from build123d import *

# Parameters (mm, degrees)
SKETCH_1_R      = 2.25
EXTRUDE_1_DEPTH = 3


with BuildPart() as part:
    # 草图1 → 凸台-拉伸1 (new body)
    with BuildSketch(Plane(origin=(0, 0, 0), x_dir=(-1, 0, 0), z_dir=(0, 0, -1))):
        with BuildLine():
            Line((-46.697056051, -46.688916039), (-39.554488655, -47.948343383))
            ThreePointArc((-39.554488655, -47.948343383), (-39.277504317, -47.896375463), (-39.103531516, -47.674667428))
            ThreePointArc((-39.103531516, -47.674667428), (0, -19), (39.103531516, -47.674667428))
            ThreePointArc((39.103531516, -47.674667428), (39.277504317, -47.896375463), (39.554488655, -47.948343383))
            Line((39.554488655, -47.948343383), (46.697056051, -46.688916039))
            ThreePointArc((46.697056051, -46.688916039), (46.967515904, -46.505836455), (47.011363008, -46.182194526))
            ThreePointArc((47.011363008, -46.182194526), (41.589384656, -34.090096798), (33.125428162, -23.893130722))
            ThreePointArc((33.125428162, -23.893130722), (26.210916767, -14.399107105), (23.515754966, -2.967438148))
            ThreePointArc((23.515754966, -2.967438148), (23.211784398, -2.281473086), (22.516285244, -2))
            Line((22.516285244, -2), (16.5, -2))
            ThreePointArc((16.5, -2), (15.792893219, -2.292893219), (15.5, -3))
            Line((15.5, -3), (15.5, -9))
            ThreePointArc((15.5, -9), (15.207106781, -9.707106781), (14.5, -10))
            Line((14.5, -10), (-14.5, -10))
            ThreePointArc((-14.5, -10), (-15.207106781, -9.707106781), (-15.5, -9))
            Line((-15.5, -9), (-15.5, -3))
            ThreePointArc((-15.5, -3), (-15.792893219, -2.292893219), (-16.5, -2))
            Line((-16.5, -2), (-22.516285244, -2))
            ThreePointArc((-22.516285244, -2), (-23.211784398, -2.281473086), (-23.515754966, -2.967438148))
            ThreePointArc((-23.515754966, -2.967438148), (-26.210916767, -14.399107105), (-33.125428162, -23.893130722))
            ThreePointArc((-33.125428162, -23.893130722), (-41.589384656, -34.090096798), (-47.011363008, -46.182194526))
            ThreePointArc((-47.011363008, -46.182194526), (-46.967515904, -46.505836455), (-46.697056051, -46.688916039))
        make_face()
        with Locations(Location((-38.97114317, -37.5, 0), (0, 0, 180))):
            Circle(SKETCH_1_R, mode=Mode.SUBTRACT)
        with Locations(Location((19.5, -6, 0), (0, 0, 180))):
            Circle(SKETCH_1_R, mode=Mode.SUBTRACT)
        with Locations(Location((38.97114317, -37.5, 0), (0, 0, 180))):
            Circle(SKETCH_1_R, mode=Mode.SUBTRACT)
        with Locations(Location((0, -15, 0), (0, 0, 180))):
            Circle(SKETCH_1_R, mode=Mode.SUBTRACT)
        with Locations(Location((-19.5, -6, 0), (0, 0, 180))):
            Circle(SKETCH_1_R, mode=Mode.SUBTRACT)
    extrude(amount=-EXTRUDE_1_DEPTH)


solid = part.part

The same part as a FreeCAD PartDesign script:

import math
import FreeCAD as App
import Part
import Sketcher

V = App.Vector
Q = App.Units.Quantity

doc = App.newDocument("Part")
params = doc.addObject("Spreadsheet::Sheet", "Params")
for row, (alias, value) in enumerate([
    ("sketch1_radius", "41 mm"),
    ("sketch1_radius2", "49 mm"),
    ("sketch1_radius3", "1 mm"),
    ("sketch1_radius4", "1 mm"),
    ("sketch1_radius5", "1 mm"),
    ("pad1_length", "3 mm"),
], start=1):
    params.set(f"A{row}", alias)
    params.set(f"B{row}", "=" + value)
    params.setAlias(f"B{row}", alias)

body = doc.addObject("PartDesign::Body", "Body")

sketch1 = doc.addObject("Sketcher::SketchObject", "Sketch")
body.addObject(sketch1)
sketch1.AttachmentSupport = (doc.XY_Plane, [""])
sketch1.MapMode = "FlatFace"
sketch1.addGeometry([
    Part.LineSegment(V(46.697056, -46.688916, 0), V(39.554489, -47.948343, 0)),
    Part.ArcOfCircle(Part.Circle(V(39.485029, -47.55442, 0), V(0, 0, 1), 0.4), math.radians(-162.505283), math.radians(-80)),
    Part.ArcOfCircle(Part.Circle(V(0, -60, 0), V(0, 0, 1), 41), math.radians(17.494717), math.radians(162.505283)),
    Part.ArcOfCircle(Part.Circle(V(-39.485029, -47.55442, 0), V(0, 0, 1), 0.4), math.radians(-100), math.radians(-17.494717)),
    Part.LineSegment(V(-39.554489, -47.948343, 0), V(-46.697056, -46.688916, 0)),
    Part.ArcOfCircle(Part.Circle(V(-46.627597, -46.294993, 0), V(0, 0, 1), 0.4), math.radians(163.62063), math.radians(260)),
    Part.ArcOfCircle(Part.Circle(V(0, -60, 0), V(0, 0, 1), 49), math.radians(132.53412), math.radians(163.62063)),
    Part.ArcOfCircle(Part.Circle(V(-53.210784, -2, 0), V(0, 0, 1), 29.710784), math.radians(-47.46588), math.radians(-1.865987)),
    Part.ArcOfCircle(Part.Circle(V(-22.516285, -3, 0), V(0, 0, 1), 1), math.radians(90), math.radians(178.134013)),
    Part.LineSegment(V(-22.516285, -2, 0), V(-16.5, -2, 0)),
    Part.ArcOfCircle(Part.Circle(V(-16.5, -3, 0), V(0, 0, 1), 1), math.radians(0), math.radians(90)),
    Part.LineSegment(V(-15.5, -3, 0), V(-15.5, -9, 0)),
    Part.ArcOfCircle(Part.Circle(V(-14.5, -9, 0), V(0, 0, 1), 1), math.radians(-180), math.radians(-90)),
    Part.LineSegment(V(-14.5, -10, 0), V(14.5, -10, 0)),
    Part.ArcOfCircle(Part.Circle(V(14.5, -9, 0), V(0, 0, 1), 1), math.radians(-90), math.radians(0)),
    Part.LineSegment(V(15.5, -9, 0), V(15.5, -3, 0)),
    Part.ArcOfCircle(Part.Circle(V(16.5, -3, 0), V(0, 0, 1), 1), math.radians(90), math.radians(180)),
    Part.LineSegment(V(16.5, -2, 0), V(22.516285, -2, 0)),
    Part.ArcOfCircle(Part.Circle(V(22.516285, -3, 0), V(0, 0, 1), 1), math.radians(1.865987), math.radians(90)),
    Part.ArcOfCircle(Part.Circle(V(53.210784, -2, 0), V(0, 0, 1), 29.710784), math.radians(-178.134013), math.radians(-132.53412)),
    Part.ArcOfCircle(Part.Circle(V(0, -60, 0), V(0, 0, 1), 49), math.radians(16.37937), math.radians(47.46588)),
    Part.ArcOfCircle(Part.Circle(V(46.627597, -46.294993, 0), V(0, 0, 1), 0.4), math.radians(-80), math.radians(16.37937)),
    Part.Circle(V(38.971143, -37.5, 0), V(0, 0, 1), 2.25),
    Part.Circle(V(-38.971143, -37.5, 0), V(0, 0, 1), 2.25),
    Part.Circle(V(19.5, -6, 0), V(0, 0, 1), 2.25),
    Part.Circle(V(0, -15, 0), V(0, 0, 1), 2.25),
    Part.Circle(V(-19.5, -6, 0), V(0, 0, 1), 2.25),
], False)
sketch1.addConstraint([
    Sketcher.Constraint("Coincident", 0, 2, 1, 2),
    Sketcher.Constraint("Coincident", 1, 1, 2, 1),
    Sketcher.Constraint("Coincident", 2, 2, 3, 2),
    Sketcher.Constraint("Coincident", 3, 1, 4, 1),
    Sketcher.Constraint("Coincident", 4, 2, 5, 2),
    Sketcher.Constraint("Coincident", 5, 1, 6, 2),
    Sketcher.Constraint("Coincident", 6, 1, 7, 1),
    Sketcher.Constraint("Coincident", 7, 2, 8, 2),
    Sketcher.Constraint("Coincident", 8, 1, 9, 1),
    Sketcher.Constraint("Coincident", 9, 2, 10, 2),
    Sketcher.Constraint("Coincident", 10, 1, 11, 1),
    Sketcher.Constraint("Coincident", 11, 2, 12, 1),
    Sketcher.Constraint("Coincident", 12, 2, 13, 1),
    Sketcher.Constraint("Coincident", 13, 2, 14, 1),
    Sketcher.Constraint("Coincident", 14, 2, 15, 1),
    Sketcher.Constraint("Coincident", 15, 2, 16, 2),
    Sketcher.Constraint("Coincident", 16, 1, 17, 1),
    Sketcher.Constraint("Coincident", 17, 2, 18, 2),
    Sketcher.Constraint("Coincident", 18, 1, 19, 1),
    Sketcher.Constraint("Coincident", 19, 2, 20, 2),
    Sketcher.Constraint("Coincident", 20, 1, 21, 2),
    Sketcher.Constraint("Coincident", 21, 1, 0, 1),
    Sketcher.Constraint("Horizontal", 9),
    Sketcher.Constraint("Vertical", 11),
    Sketcher.Constraint("Horizontal", 13),
    Sketcher.Constraint("Vertical", 15),
    Sketcher.Constraint("Horizontal", 17),
    Sketcher.Constraint("Coincident", 6, 3, 2, 3),
    Sketcher.Constraint("Coincident", 20, 3, 2, 3),
    Sketcher.Constraint("PointOnObject", 2, 3, -2),
    Sketcher.Constraint("PointOnObject", 25, 3, -2),
    Sketcher.Constraint("Radius", 2, Q("41 mm")),
    Sketcher.Constraint("Radius", 6, Q("49 mm")),
    Sketcher.Constraint("Radius", 8, Q("1 mm")),
    Sketcher.Constraint("Radius", 10, Q("1 mm")),
    Sketcher.Constraint("Radius", 12, Q("1 mm")),
    Sketcher.Constraint("Radius", 14, Q("1 mm")),
    Sketcher.Constraint("Radius", 16, Q("1 mm")),
    Sketcher.Constraint("Radius", 18, Q("1 mm")),
    Sketcher.Constraint("Radius", 20, Q("49 mm")),
    Sketcher.Constraint("Diameter", 22, Q("4.5 mm")),
    Sketcher.Constraint("Diameter", 23, Q("4.5 mm")),
    Sketcher.Constraint("Diameter", 24, Q("4.5 mm")),
    Sketcher.Constraint("Diameter", 25, Q("4.5 mm")),
    Sketcher.Constraint("Diameter", 26, Q("4.5 mm")),
    Sketcher.Constraint("Radius", 1, Q("0.4 mm")),
    Sketcher.Constraint("Radius", 3, Q("0.4 mm")),
    Sketcher.Constraint("Radius", 5, Q("0.4 mm")),
    Sketcher.Constraint("Radius", 21, Q("0.4 mm")),
    Sketcher.Constraint("DistanceX", 13, 1, 13, 2, Q("29 mm")),
    Sketcher.Constraint("DistanceY", 11, 2, 11, 1, Q("6 mm")),
    Sketcher.Constraint("DistanceY", 15, 1, 15, 2, Q("6 mm")),
    Sketcher.Constraint("DistanceY", 2, 3, -1, 1, Q("60 mm")),
    Sketcher.Constraint("DistanceY", 7, 3, -1, 1, Q("2 mm")),
    Sketcher.Constraint("DistanceY", 8, 3, -1, 1, Q("3 mm")),
    Sketcher.Constraint("DistanceY", 12, 3, -1, 1, Q("9 mm")),
    Sketcher.Constraint("DistanceY", 16, 3, -1, 1, Q("3 mm")),
    Sketcher.Constraint("DistanceY", 19, 3, -1, 1, Q("2 mm")),
    Sketcher.Constraint("DistanceY", 24, 3, -1, 1, Q("6 mm")),
    Sketcher.Constraint("DistanceY", 25, 3, -1, 1, Q("15 mm")),
    Sketcher.Constraint("DistanceY", 26, 3, -1, 1, Q("6 mm")),
    Sketcher.Constraint("DistanceY", 10, 1, -1, 1, Q("3 mm")),
    Sketcher.Constraint("DistanceY", 14, 2, -1, 1, Q("9 mm")),
    Sketcher.Constraint("DistanceX", 12, 3, 14, 3, Q("29 mm")),
    Sketcher.Constraint("DistanceX", 16, 3, 24, 3, Q("3 mm")),
    Sketcher.Constraint("DistanceX", 26, 3, 10, 3, Q("3 mm")),
    Sketcher.Constraint("DistanceX", 26, 3, 9, 2, Q("3 mm")),
    Sketcher.Constraint("DistanceX", 11, 2, 12, 2, Q("1 mm")),
    Sketcher.Constraint("DistanceX", 15, 2, 16, 1, Q("1 mm")),
    Sketcher.Constraint("DistanceX", 10, 3, -1, 1, Q("16.5 mm")),
    Sketcher.Constraint("DistanceY", 22, 3, -1, 1, Q("37.5 mm")),
    Sketcher.Constraint("DistanceY", 23, 3, -1, 1, Q("37.5 mm")),
    Sketcher.Constraint("Radius", 7, Q("29.710784 mm")),
    Sketcher.Constraint("Radius", 19, Q("29.710784 mm")),
    Sketcher.Constraint("DistanceY", 5, 3, 5, 1, Q("0.112798 mm")),
    Sketcher.Constraint("DistanceX", 3, 3, 6, 1, Q("6.359601 mm")),
    Sketcher.Constraint("DistanceY", 21, 3, 20, 1, Q("0.112798 mm")),
    Sketcher.Constraint("DistanceX", 9, 1, 9, 2, Q("6.016285 mm")),
    Sketcher.Constraint("DistanceX", 17, 1, 17, 2, Q("6.016285 mm")),
    Sketcher.Constraint("DistanceX", -1, 1, 1, 3, Q("39.485029 mm")),
    Sketcher.Constraint("DistanceX", 3, 3, -1, 1, Q("39.485029 mm")),
    Sketcher.Constraint("DistanceX", -1, 1, 0, 2, Q("39.554489 mm")),
    Sketcher.Constraint("DistanceX", -1, 1, 1, 1, Q("39.103532 mm")),
    Sketcher.Constraint("DistanceX", 2, 2, -1, 1, Q("39.103532 mm")),
    Sketcher.Constraint("DistanceX", 3, 1, -1, 1, Q("39.554489 mm")),
    Sketcher.Constraint("DistanceY", 7, 2, -1, 1, Q("2.967438 mm")),
    Sketcher.Constraint("DistanceY", 18, 1, -1, 1, Q("2.967438 mm")),
    Sketcher.Constraint("DistanceX", -1, 1, 19, 2, Q("33.125428 mm")),
    Sketcher.Constraint("DistanceX", 5, 3, 8, 3, Q("24.111312 mm")),
    Sketcher.Constraint("DistanceX", 22, 3, 19, 3, Q("14.239641 mm")),
    Sketcher.Constraint("DistanceX", 7, 3, 23, 3, Q("14.239641 mm")),
    Sketcher.Constraint("DistanceX", 0, 2, 21, 3, Q("7.073108 mm")),
    Sketcher.Constraint("DistanceX", 4, 2, 5, 3, Q("0.069459 mm")),
    Sketcher.Constraint("DistanceX", 21, 3, 21, 1, Q("0.069459 mm")),
])
sketch1.setExpression("Constraints[31]", "Params.sketch1_radius")
sketch1.setExpression("Constraints[32]", "Params.sketch1_radius2")
sketch1.setExpression("Constraints[33]", "Params.sketch1_radius3")
sketch1.setExpression("Constraints[34]", "Params.sketch1_radius4")
sketch1.setExpression("Constraints[35]", "Params.sketch1_radius5")
pad1 = doc.addObject("PartDesign::Pad", "Pad")
body.addObject(pad1)
pad1.Profile = sketch1
pad1.setExpression("Length", "Params.pad1_length")

doc.recompute()
